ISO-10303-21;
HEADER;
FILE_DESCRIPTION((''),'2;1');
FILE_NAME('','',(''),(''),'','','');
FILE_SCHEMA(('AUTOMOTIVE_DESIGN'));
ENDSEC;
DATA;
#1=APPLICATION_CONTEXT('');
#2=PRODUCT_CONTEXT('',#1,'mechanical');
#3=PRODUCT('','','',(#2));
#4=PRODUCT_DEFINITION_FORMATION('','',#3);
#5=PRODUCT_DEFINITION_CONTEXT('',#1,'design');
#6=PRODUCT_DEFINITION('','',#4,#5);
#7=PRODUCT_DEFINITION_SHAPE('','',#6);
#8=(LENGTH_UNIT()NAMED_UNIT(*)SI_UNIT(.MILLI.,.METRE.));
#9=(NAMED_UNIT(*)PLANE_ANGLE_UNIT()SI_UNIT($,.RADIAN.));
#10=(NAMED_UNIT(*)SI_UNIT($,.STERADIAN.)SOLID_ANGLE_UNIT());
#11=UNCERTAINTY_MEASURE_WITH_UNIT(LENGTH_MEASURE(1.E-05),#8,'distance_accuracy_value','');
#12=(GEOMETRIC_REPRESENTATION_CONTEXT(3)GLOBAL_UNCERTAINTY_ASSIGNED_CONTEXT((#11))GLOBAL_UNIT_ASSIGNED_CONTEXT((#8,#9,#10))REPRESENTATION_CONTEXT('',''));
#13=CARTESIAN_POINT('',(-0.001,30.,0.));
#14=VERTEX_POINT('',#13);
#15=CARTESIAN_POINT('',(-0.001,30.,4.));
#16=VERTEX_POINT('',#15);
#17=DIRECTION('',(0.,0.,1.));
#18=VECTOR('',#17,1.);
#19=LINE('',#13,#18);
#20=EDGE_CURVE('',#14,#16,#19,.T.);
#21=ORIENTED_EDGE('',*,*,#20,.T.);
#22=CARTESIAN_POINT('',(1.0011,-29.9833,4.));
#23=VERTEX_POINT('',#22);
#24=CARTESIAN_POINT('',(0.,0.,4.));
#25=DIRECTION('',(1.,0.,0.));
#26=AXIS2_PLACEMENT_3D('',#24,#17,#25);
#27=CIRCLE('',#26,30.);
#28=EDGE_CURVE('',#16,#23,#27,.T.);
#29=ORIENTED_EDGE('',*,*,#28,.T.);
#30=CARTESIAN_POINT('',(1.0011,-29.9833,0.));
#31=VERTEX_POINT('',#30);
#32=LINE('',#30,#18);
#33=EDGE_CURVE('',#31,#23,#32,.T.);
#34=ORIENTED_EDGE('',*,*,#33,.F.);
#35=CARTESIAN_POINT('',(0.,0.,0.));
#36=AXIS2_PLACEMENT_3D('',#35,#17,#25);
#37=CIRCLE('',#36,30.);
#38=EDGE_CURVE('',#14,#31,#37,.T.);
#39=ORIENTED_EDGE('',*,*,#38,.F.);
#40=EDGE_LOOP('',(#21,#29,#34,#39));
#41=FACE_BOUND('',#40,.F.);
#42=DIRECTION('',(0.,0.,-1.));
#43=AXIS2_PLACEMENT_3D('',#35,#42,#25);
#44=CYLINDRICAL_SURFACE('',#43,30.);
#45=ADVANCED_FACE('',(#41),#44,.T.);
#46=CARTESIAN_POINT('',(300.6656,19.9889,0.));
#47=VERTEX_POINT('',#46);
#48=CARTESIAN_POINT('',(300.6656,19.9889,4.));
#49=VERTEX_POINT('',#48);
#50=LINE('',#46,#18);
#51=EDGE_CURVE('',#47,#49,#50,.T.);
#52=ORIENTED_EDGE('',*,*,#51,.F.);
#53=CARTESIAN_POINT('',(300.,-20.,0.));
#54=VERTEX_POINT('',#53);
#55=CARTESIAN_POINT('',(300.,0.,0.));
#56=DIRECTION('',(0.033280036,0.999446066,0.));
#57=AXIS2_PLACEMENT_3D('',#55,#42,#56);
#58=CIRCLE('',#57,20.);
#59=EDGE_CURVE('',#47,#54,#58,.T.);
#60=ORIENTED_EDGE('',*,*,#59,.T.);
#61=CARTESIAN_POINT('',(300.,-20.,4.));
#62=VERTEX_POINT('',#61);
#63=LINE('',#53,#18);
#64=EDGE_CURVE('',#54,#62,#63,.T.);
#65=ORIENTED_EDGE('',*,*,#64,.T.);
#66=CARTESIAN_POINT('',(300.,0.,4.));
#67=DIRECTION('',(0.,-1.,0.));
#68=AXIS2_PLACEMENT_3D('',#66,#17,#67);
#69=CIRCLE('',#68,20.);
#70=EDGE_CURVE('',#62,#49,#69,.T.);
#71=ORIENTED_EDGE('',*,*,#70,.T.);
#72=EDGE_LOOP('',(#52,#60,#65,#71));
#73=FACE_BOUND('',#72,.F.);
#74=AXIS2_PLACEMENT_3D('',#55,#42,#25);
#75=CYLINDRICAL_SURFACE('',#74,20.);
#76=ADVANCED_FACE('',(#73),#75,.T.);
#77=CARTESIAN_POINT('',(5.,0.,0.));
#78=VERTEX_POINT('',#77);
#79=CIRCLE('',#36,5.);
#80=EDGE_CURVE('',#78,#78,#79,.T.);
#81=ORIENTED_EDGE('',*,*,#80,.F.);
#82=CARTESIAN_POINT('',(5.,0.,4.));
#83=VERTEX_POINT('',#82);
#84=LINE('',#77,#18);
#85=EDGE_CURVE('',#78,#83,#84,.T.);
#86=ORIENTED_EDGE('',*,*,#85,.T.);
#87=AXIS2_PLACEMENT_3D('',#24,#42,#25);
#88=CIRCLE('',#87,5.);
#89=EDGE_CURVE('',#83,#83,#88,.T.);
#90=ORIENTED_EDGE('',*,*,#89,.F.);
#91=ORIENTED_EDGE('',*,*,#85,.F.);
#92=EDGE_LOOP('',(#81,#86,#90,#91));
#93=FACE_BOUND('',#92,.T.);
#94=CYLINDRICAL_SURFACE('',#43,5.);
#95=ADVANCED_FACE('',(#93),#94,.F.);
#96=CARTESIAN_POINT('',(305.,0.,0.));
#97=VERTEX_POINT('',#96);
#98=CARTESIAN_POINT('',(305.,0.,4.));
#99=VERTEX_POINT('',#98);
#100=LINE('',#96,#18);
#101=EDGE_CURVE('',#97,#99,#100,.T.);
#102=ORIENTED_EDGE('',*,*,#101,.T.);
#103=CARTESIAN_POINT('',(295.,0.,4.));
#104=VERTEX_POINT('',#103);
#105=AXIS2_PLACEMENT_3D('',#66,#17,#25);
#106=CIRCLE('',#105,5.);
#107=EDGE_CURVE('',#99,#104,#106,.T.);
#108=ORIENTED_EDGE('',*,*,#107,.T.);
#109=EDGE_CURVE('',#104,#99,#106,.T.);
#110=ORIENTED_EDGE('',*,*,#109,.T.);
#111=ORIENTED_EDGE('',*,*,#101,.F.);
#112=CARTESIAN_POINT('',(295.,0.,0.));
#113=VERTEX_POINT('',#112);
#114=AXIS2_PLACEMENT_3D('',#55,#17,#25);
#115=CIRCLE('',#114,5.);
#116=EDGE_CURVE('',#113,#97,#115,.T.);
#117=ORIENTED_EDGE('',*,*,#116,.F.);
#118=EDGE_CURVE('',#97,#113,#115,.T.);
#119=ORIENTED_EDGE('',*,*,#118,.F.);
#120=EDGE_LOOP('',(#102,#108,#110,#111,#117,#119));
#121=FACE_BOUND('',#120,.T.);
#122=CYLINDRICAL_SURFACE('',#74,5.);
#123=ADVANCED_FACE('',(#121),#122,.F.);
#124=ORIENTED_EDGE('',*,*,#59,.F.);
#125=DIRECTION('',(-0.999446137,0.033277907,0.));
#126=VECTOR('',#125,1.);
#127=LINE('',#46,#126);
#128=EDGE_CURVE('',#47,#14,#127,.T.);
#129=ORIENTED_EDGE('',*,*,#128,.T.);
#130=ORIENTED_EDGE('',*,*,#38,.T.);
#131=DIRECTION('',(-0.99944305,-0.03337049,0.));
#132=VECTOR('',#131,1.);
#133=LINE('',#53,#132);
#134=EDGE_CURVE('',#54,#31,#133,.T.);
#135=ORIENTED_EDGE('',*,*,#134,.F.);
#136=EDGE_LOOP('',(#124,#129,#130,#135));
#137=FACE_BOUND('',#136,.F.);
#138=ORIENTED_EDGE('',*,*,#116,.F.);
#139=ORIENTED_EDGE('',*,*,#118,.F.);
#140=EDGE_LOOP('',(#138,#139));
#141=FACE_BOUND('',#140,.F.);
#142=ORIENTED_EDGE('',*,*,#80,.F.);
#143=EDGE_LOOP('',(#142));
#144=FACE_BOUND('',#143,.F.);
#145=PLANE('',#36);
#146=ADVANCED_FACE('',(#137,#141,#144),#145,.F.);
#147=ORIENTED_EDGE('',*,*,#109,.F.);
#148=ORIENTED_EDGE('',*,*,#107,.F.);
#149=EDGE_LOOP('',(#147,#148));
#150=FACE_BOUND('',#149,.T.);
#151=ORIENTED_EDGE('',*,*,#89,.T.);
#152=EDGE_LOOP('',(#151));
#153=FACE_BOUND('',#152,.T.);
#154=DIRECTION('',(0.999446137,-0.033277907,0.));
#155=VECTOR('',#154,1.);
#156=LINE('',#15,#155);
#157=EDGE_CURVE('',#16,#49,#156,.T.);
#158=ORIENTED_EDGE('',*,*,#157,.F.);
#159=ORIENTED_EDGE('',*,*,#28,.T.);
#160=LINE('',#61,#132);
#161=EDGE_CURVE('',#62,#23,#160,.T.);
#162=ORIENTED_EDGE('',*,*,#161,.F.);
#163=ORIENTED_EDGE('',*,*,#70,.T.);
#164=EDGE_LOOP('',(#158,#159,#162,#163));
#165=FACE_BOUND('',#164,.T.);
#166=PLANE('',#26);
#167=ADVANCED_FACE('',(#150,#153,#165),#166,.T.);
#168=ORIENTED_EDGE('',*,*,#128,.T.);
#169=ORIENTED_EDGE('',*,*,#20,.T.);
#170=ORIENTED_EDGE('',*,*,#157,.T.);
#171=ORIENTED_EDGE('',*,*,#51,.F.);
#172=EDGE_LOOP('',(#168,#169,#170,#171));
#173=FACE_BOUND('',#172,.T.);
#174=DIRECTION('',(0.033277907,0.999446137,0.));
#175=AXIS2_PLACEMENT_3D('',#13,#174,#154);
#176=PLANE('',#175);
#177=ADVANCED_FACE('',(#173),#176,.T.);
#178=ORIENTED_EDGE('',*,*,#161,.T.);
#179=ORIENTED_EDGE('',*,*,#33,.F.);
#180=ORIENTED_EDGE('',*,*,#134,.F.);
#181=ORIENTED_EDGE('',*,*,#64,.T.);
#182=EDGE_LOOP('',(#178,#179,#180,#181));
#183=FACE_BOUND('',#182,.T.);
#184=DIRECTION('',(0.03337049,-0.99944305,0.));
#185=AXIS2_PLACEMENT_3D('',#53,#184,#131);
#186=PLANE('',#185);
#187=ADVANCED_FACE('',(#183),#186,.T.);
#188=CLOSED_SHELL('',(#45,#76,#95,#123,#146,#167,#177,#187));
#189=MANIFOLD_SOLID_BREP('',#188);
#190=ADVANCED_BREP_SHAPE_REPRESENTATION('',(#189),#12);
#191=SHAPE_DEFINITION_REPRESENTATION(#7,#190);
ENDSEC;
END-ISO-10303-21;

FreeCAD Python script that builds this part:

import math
import FreeCAD as App
import Part
import Sketcher

V = App.Vector

doc = App.newDocument("Part")
body = doc.addObject("PartDesign::Body", "Body")

# Sketch on XY plane
sketch1 = body.newObject("Sketcher::SketchObject", "Sketch")
sketch1.AttachmentSupport = (doc.getObject("XY_Plane"), [""])
sketch1.MapMode = "FlatFace"
sketch1.addGeometry([
    Part.ArcOfCircle(Part.Circle(V(0, 0, 0), V(0, 0, 1), 30), math.radians(90), math.radians(272)),  # 0
    Part.LineSegment(V(1, -30, 0), V(300, -20, 0)),  # 1
    Part.ArcOfCircle(Part.Circle(V(300, 0, 0), V(0, 0, 1), 20), math.radians(-90), math.radians(88)),  # 2
    Part.LineSegment(V(301, 20, 0), V(0, 30, 0)),  # 3
    Part.Circle(V(0, 0, 0), V(0, 0, 1), 5),  # 4
    Part.Circle(V(300, 0, 0), V(0, 0, 1), 5),  # 5
], False)
sketch1.addConstraint([
    Sketcher.Constraint("Tangent", 0, 2, 1, 1),
    Sketcher.Constraint("Coincident", 1, 2, 2, 1),
    Sketcher.Constraint("Tangent", 2, 2, 3, 1),
    Sketcher.Constraint("Coincident", 3, 2, 0, 1),
    Sketcher.Constraint("Coincident", 0, 3, -1, 1),
    Sketcher.Constraint("Coincident", 4, 3, -1, 1),
    Sketcher.Constraint("Coincident", 5, 3, 2, 3),
    Sketcher.Constraint("Equal", 4, 5),
    Sketcher.Constraint("PointOnObject", 2, 3, -1),
    Sketcher.Constraint("Vertical", 5, 3, 1, 2),
    Sketcher.Constraint("Diameter", 4, 10.0),
    Sketcher.Constraint("Radius", 0, 30.0),
    Sketcher.Constraint("Radius", 2, 20.0),
    Sketcher.Constraint("DistanceX", -1, 1, 2, 3, 300.0),
    Sketcher.Constraint("DistanceX", 3, 2, -1, 1, 0.001),
])
pad1 = body.newObject("PartDesign::Pad", "Pad")
pad1.Profile = sketch1
pad1.Length = 4

doc.recompute()
